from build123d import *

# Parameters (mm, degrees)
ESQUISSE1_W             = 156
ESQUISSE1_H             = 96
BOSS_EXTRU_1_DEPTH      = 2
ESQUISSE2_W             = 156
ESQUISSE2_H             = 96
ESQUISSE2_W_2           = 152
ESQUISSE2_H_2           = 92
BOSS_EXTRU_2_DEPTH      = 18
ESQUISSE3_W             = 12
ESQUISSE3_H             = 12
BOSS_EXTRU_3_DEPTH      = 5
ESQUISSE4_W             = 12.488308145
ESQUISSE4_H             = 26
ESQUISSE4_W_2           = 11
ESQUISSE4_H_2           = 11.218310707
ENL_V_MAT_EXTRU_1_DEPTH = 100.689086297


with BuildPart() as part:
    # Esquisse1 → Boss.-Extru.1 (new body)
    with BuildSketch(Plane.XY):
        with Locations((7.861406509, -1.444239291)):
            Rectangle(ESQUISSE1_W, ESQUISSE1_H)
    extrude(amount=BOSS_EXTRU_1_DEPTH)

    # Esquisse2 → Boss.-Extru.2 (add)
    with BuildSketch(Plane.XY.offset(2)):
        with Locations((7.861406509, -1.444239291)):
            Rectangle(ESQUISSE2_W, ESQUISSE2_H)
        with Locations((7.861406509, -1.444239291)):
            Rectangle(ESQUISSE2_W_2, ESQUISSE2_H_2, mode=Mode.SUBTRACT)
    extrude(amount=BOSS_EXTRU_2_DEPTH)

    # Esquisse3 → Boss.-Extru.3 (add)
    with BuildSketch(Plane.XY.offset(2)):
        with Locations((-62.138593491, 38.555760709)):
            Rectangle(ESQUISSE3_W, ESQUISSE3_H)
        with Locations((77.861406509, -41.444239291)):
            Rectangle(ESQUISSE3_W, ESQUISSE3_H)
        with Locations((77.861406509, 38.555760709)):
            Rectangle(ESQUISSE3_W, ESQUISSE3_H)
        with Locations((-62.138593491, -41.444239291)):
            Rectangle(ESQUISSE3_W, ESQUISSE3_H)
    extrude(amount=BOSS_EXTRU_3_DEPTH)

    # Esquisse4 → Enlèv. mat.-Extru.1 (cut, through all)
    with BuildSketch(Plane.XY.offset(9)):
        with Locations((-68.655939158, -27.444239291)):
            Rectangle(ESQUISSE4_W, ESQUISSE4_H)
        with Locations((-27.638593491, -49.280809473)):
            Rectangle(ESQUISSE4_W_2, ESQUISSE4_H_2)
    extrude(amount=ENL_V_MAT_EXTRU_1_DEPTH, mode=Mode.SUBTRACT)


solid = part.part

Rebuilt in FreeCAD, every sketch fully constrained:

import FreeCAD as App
import Part
import Sketcher

V = App.Vector
Q = App.Units.Quantity


def add_polygon(sketch, points):
    """Adds a closed chain of lines whose ends are joined by coincident constraints."""
    first, n = sketch.GeometryCount, len(points)
    for a, b in zip(points, points[1:] + points[:1]):
        sketch.addGeometry(Part.LineSegment(App.Vector(*a, 0), App.Vector(*b, 0)), False)
    for i in range(n):
        sketch.addConstraint(Sketcher.Constraint("Coincident", first + i, 2, first + (i + 1) % n, 1))

doc = App.newDocument("Part")
params = doc.addObject("Spreadsheet::Sheet", "Params")
for row, (alias, value) in enumerate([
    ("sketch1_width", "156 mm"),
    ("sketch1_height", "96 mm"),
    ("pad1_length", "2 mm"),
    ("sketch2_width", "156 mm"),
    ("sketch2_width2", "152 mm"),
    ("sketch2_height", "96 mm"),
    ("sketch2_height2", "92 mm"),
    ("pad2_length", "18 mm"),
    ("sketch3_width", "12 mm"),
    ("pad3_length", "5 mm"),
    ("sketch4_width", "11 mm"),
    ("sketch4_height", "26 mm"),
], start=1):
    params.set(f"A{row}", alias)
    params.set(f"B{row}", "=" + value)
    params.setAlias(f"B{row}", alias)

body = doc.addObject("PartDesign::Body", "Body")

# Sketch on XY plane
sketch1 = doc.addObject("Sketcher::SketchObject", "Sketch")
body.addObject(sketch1)
sketch1.AttachmentSupport = (doc.XY_Plane, [""])
sketch1.MapMode = "FlatFace"
add_polygon(sketch1, [(-70, 47), (-70, -49), (86, -49), (86, 47)])  # lines 0-3
sketch1.addConstraint(Sketcher.Constraint("Vertical", 0))
sketch1.addConstraint(Sketcher.Constraint("Horizontal", 1))
sketch1.addConstraint(Sketcher.Constraint("Vertical", 2))
sketch1.addConstraint(Sketcher.Constraint("Horizontal", 3))
sketch1.addConstraint(Sketcher.Constraint("DistanceX", 1, 1, 1, 2, Q("156 mm")))
sketch1.addConstraint(Sketcher.Constraint("DistanceY", 0, 2, 0, 1, Q("96 mm")))
sketch1.addConstraint(Sketcher.Constraint("DistanceY", 0, 2, -1, 1, Q("49.444239 mm")))
sketch1.addConstraint(Sketcher.Constraint("DistanceX", 0, 2, -1, 1, Q("70.138593 mm")))
sketch1.setExpression("Constraints[8]", "Params.sketch1_width")
sketch1.setExpression("Constraints[9]", "Params.sketch1_height")
pad1 = doc.addObject("PartDesign::Pad", "Pad")
body.addObject(pad1)
pad1.Profile = sketch1
pad1.setExpression("Length", "Params.pad1_length")

# Sketch on XY plane
sketch2 = doc.addObject("Sketcher::SketchObject", "Sketch001")
body.addObject(sketch2)
sketch2.AttachmentSupport = (doc.XY_Plane, [""])
sketch2.MapMode = "FlatFace"
sketch2.AttachmentOffset = App.Placement(V(0, 0, 2), App.Rotation())
add_polygon(sketch2, [(-70, 47), (-70, -49), (86, -49), (86, 47)])  # lines 0-3
add_polygon(sketch2, [(84, -47), (-68, -47), (-68, 45), (84, 45)])  # lines 4-7
sketch2.addConstraint(Sketcher.Constraint("Vertical", 0))
sketch2.addConstraint(Sketcher.Constraint("Horizontal", 1))
sketch2.addConstraint(Sketcher.Constraint("Vertical", 2))
sketch2.addConstraint(Sketcher.Constraint("Horizontal", 3))
sketch2.addConstraint(Sketcher.Constraint("Horizontal", 4))
sketch2.addConstraint(Sketcher.Constraint("Vertical", 5))
sketch2.addConstraint(Sketcher.Constraint("Horizontal", 6))
sketch2.addConstraint(Sketcher.Constraint("Vertical", 7))
sketch2.addConstraint(Sketcher.Constraint("DistanceX", 1, 1, 1, 2, Q("156 mm")))
sketch2.addConstraint(Sketcher.Constraint("DistanceX", 4, 2, 4, 1, Q("152 mm")))
sketch2.addConstraint(Sketcher.Constraint("DistanceY", 0, 2, 0, 1, Q("96 mm")))
sketch2.addConstraint(Sketcher.Constraint("DistanceY", 5, 1, 5, 2, Q("92 mm")))
sketch2.addConstraint(Sketcher.Constraint("DistanceX", 0, 2, 4, 2, Q("2 mm")))
sketch2.addConstraint(Sketcher.Constraint("DistanceY", 0, 2, 4, 2, Q("2 mm")))
sketch2.addConstraint(Sketcher.Constraint("DistanceY", 0, 2, -1, 1, Q("49.444239 mm")))
sketch2.addConstraint(Sketcher.Constraint("DistanceX", 0, 2, -1, 1, Q("70.138593 mm")))
sketch2.setExpression("Constraints[16]", "Params.sketch2_width")
sketch2.setExpression("Constraints[17]", "Params.sketch2_width2")
sketch2.setExpression("Constraints[18]", "Params.sketch2_height")
sketch2.setExpression("Constraints[19]", "Params.sketch2_height2")
pad2 = doc.addObject("PartDesign::Pad", "Pad001")
body.addObject(pad2)
pad2.Profile = sketch2
pad2.setExpression("Length", "Params.pad2_length")

# Sketch on XY plane
sketch3 = doc.addObject("Sketcher::SketchObject", "Sketch002")
body.addObject(sketch3)
sketch3.AttachmentSupport = (doc.XY_Plane, [""])
sketch3.MapMode = "FlatFace"
sketch3.AttachmentOffset = App.Placement(V(0, 0, 2), App.Rotation())
add_polygon(sketch3, [(-68, 45), (-68, 33), (-56, 33), (-56, 45)])  # lines 0-3
add_polygon(sketch3, [(72, -35), (72, -47), (84, -47), (84, -35)])  # lines 4-7
add_polygon(sketch3, [(72, 45), (72, 33), (84, 33), (84, 45)])  # lines 8-11
add_polygon(sketch3, [(-68, -35), (-68, -47), (-56, -47), (-56, -35)])  # lines 12-15
sketch3.addConstraint(Sketcher.Constraint("Vertical", 0))
sketch3.addConstraint(Sketcher.Constraint("Horizontal", 1))
sketch3.addConstraint(Sketcher.Constraint("Vertical", 2))
sketch3.addConstraint(Sketcher.Constraint("Horizontal", 3))
sketch3.addConstraint(Sketcher.Constraint("Vertical", 4))
sketch3.addConstraint(Sketcher.Constraint("Horizontal", 5))
sketch3.addConstraint(Sketcher.Constraint("Vertical", 6))
sketch3.addConstraint(Sketcher.Constraint("Horizontal", 7))
sketch3.addConstraint(Sketcher.Constraint("Vertical", 8))
sketch3.addConstraint(Sketcher.Constraint("Horizontal", 9))
sketch3.addConstraint(Sketcher.Constraint("Vertical", 10))
sketch3.addConstraint(Sketcher.Constraint("Horizontal", 11))
sketch3.addConstraint(Sketcher.Constraint("Vertical", 12))
sketch3.addConstraint(Sketcher.Constraint("Horizontal", 13))
sketch3.addConstraint(Sketcher.Constraint("Vertical", 14))
sketch3.addConstraint(Sketcher.Constraint("Horizontal", 15))
sketch3.addConstraint(Sketcher.Constraint("Horizontal", 1, 2, 8, 2))
sketch3.addConstraint(Sketcher.Constraint("Horizontal", 3, 2, 10, 2))
sketch3.addConstraint(Sketcher.Constraint("Horizontal", 5, 2, 12, 2))
sketch3.addConstraint(Sketcher.Constraint("Horizontal", 7, 2, 14, 2))
sketch3.addConstraint(Sketcher.Constraint("Vertical", 7, 2, 8, 2))
sketch3.addConstraint(Sketcher.Constraint("Vertical", 6, 2, 9, 2))
sketch3.addConstraint(Sketcher.Constraint("Vertical", 3, 2, 12, 2))
sketch3.addConstraint(Sketcher.Constraint("Vertical", 2, 2, 13, 2))
sketch3.addConstraint(Sketcher.Constraint("Equal", 3, 5))
sketch3.addConstraint(Sketcher.Constraint("Equal", 15, 0))
sketch3.addConstraint(Sketcher.Constraint("Equal", 2, 4))
sketch3.addConstraint(Sketcher.Constraint("DistanceX", 1, 1, 1, 2, Q("12 mm")))
sketch3.addConstraint(Sketcher.Constraint("DistanceX", 1, 2, 4, 2, Q("128 mm")))
sketch3.addConstraint(Sketcher.Constraint("DistanceY", 4, 2, 1, 2, Q("80 mm")))
sketch3.addConstraint(Sketcher.Constraint("DistanceY", -1, 1, 0, 2, Q("32.555761 mm")))
sketch3.addConstraint(Sketcher.Constraint("DistanceX", 0, 2, -1, 1, Q("68.138593 mm")))
sketch3.setExpression("Constraints[43]", "Params.sketch3_width")
pad3 = doc.addObject("PartDesign::Pad", "Pad002")
body.addObject(pad3)
pad3.Profile = sketch3
pad3.setExpression("Length", "Params.pad3_length")

# Sketch on XY plane
sketch4 = doc.addObject("Sketcher::SketchObject", "Sketch003")
body.addObject(sketch4)
sketch4.AttachmentSupport = (doc.XY_Plane, [""])
sketch4.MapMode = "FlatFace"
sketch4.AttachmentOffset = App.Placement(V(0, 0, 9), App.Rotation())
add_polygon(sketch4, [(-75, -14), (-75, -40), (-62, -40), (-62, -14)])  # lines 0-3
add_polygon(sketch4, [(-33, -44), (-33, -55), (-22, -55), (-22, -44)])  # lines 4-7
sketch4.addConstraint(Sketcher.Constraint("Vertical", 0))
sketch4.addConstraint(Sketcher.Constraint("Horizontal", 1))
sketch4.addConstraint(Sketcher.Constraint("Vertical", 2))
sketch4.addConstraint(Sketcher.Constraint("Horizontal", 3))
sketch4.addConstraint(Sketcher.Constraint("Vertical", 4))
sketch4.addConstraint(Sketcher.Constraint("Horizontal", 5))
sketch4.addConstraint(Sketcher.Constraint("Vertical", 6))
sketch4.addConstraint(Sketcher.Constraint("Horizontal", 7))
sketch4.addConstraint(Sketcher.Constraint("DistanceX", 5, 1, 5, 2, Q("11 mm")))
sketch4.addConstraint(Sketcher.Constraint("DistanceY", 0, 2, 0, 1, Q("26 mm")))
sketch4.addConstraint(Sketcher.Constraint("DistanceX", 1, 1, 1, 2, Q("12.488308 mm")))
sketch4.addConstraint(Sketcher.Constraint("DistanceY", 4, 2, 4, 1, Q("11.218311 mm")))
sketch4.addConstraint(Sketcher.Constraint("DistanceX", 0, 2, 4, 2, Q("41.7615 mm")))
sketch4.addConstraint(Sketcher.Constraint("DistanceY", 0, 2, -1, 1, Q("40.444239 mm")))
sketch4.addConstraint(Sketcher.Constraint("DistanceX", 0, 2, -1, 1, Q("74.900093 mm")))
sketch4.addConstraint(Sketcher.Constraint("DistanceY", 4, 2, -1, 1, Q("54.889965 mm")))
sketch4.setExpression("Constraints[16]", "Params.sketch4_width")
sketch4.setExpression("Constraints[17]", "Params.sketch4_height")
pocket1 = doc.addObject("PartDesign::Pocket", "Pocket")
body.addObject(pocket1)
pocket1.Profile = sketch4
pocket1.Type = "ThroughAll"
pocket1.Reversed = True

doc.recompute()
